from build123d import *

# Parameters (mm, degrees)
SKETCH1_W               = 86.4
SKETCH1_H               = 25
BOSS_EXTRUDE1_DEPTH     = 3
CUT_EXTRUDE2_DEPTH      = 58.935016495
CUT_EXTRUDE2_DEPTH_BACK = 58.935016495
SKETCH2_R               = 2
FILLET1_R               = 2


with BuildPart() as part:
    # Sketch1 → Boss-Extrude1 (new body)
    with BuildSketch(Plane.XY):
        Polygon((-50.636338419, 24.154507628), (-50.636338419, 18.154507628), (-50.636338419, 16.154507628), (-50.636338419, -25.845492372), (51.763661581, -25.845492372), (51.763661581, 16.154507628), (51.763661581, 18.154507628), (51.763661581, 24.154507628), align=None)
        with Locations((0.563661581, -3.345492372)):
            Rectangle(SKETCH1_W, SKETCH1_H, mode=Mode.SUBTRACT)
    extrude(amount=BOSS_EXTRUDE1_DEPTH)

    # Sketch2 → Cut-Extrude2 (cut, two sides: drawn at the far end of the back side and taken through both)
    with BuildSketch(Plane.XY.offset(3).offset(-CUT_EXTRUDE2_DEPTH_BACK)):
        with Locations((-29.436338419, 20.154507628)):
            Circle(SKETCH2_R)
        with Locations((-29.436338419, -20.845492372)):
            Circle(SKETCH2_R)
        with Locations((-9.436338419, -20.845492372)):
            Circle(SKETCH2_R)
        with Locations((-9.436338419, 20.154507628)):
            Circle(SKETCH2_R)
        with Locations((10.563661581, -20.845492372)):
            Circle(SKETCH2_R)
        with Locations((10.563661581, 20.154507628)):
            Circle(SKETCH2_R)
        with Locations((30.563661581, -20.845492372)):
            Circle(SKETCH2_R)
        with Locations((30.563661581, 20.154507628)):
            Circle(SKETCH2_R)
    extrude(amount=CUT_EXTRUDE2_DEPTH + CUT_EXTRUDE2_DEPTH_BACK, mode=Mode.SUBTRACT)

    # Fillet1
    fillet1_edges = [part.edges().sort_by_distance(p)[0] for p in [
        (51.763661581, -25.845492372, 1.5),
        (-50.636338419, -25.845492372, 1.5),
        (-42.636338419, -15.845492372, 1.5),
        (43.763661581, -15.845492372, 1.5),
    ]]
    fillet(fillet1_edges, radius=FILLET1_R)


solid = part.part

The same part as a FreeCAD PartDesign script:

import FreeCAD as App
import Part
import Sketcher


def edges_at(feature, points):
    """Names of the edges that pass closest to the given points."""
    edges = feature.Shape.Edges
    near = lambda p: min(range(len(edges)), key=lambda i: edges[i].distToShape(Part.Vertex(*p))[0])
    return sorted({f"Edge{near(p) + 1}" for p in points})


def add_polygon(sketch, points):
    """Adds a closed chain of lines whose ends are joined by coincident constraints."""
    first, n = sketch.GeometryCount, len(points)
    for a, b in zip(points, points[1:] + points[:1]):
        sketch.addGeometry(Part.LineSegment(App.Vector(*a, 0), App.Vector(*b, 0)), False)
    for i in range(n):
        sketch.addConstraint(Sketcher.Constraint("Coincident", first + i, 2, first + (i + 1) % n, 1))

doc = App.newDocument("Part")
body = doc.addObject("PartDesign::Body", "Body")

sketch1 = body.newObject("Sketcher::SketchObject", "Sketch")
sketch1.AttachmentSupport = (doc.getObject("XY_Plane"), [""])
sketch1.MapMode = "FlatFace"
add_polygon(sketch1, [(-51, 24), (-51, -26), (52, -26), (52, 24)])
add_polygon(sketch1, [(44, -16), (-43, -16), (-43, 9), (44, 9)])
sketch1.addConstraint(Sketcher.Constraint("Vertical", 0))
sketch1.addConstraint(Sketcher.Constraint("Horizontal", 1))
sketch1.addConstraint(Sketcher.Constraint("Vertical", 2))
sketch1.addConstraint(Sketcher.Constraint("Horizontal", 3))
sketch1.addConstraint(Sketcher.Constraint("Horizontal", 4))
sketch1.addConstraint(Sketcher.Constraint("Vertical", 5))
sketch1.addConstraint(Sketcher.Constraint("Horizontal", 6))
sketch1.addConstraint(Sketcher.Constraint("Vertical", 7))
sketch1.addConstraint(Sketcher.Constraint("DistanceY", 0, 2, 0, 1, 50.0))
sketch1.addConstraint(Sketcher.Constraint("DistanceY", 5, 1, 5, 2, 25.0))
sketch1.addConstraint(Sketcher.Constraint("DistanceX", 1, 1, 1, 2, 102.4))
sketch1.addConstraint(Sketcher.Constraint("DistanceX", 4, 2, 4, 1, 86.4))
sketch1.addConstraint(Sketcher.Constraint("DistanceX", 0, 2, 4, 2, 8.0))
sketch1.addConstraint(Sketcher.Constraint("DistanceY", 0, 2, 4, 2, 10.0))
sketch1.addConstraint(Sketcher.Constraint("DistanceX", 0, 2, -1, 1, 50.636338))
sketch1.addConstraint(Sketcher.Constraint("DistanceY", 0, 2, -1, 1, 25.845492))
pad1 = body.newObject("PartDesign::Pad", "Pad")
pad1.Profile = sketch1
pad1.Length = 3

sketch2 = body.newObject("Sketcher::SketchObject", "Sketch001")
sketch2.AttachmentSupport = (doc.getObject("XY_Plane"), [""])
sketch2.MapMode = "FlatFace"
sketch2.AttachmentOffset = App.Placement(App.Vector(0, 0, 3), App.Rotation())
sketch2.addGeometry(Part.Circle(App.Vector(-29.4, 20.2, 0), App.Vector(0, 0, 1), 2), False)
sketch2.addGeometry(Part.Circle(App.Vector(-29.4, -20.8, 0), App.Vector(0, 0, 1), 2), False)
sketch2.addGeometry(Part.Circle(App.Vector(-9.4, -20.8, 0), App.Vector(0, 0, 1), 2), False)
sketch2.addGeometry(Part.Circle(App.Vector(-9.4, 20.2, 0), App.Vector(0, 0, 1), 2), False)
sketch2.addGeometry(Part.Circle(App.Vector(10.6, -20.8, 0), App.Vector(0, 0, 1), 2), False)
sketch2.addGeometry(Part.Circle(App.Vector(10.6, 20.2, 0), App.Vector(0, 0, 1), 2), False)
sketch2.addGeometry(Part.Circle(App.Vector(30.6, -20.8, 0), App.Vector(0, 0, 1), 2), False)
sketch2.addGeometry(Part.Circle(App.Vector(30.6, 20.2, 0), App.Vector(0, 0, 1), 2), False)
sketch2.addConstraint(Sketcher.Constraint("Equal", 0, 1))
sketch2.addConstraint(Sketcher.Constraint("Equal", 1, 2))
sketch2.addConstraint(Sketcher.Constraint("Equal", 2, 3))
sketch2.addConstraint(Sketcher.Constraint("Equal", 3, 4))
sketch2.addConstraint(Sketcher.Constraint("Equal", 4, 5))
sketch2.addConstraint(Sketcher.Constraint("Equal", 5, 6))
sketch2.addConstraint(Sketcher.Constraint("Equal", 6, 7))
sketch2.addConstraint(Sketcher.Constraint("Horizontal", 1, 3, 2, 3))
sketch2.addConstraint(Sketcher.Constraint("Horizontal", 0, 3, 3, 3))
sketch2.addConstraint(Sketcher.Constraint("Horizontal", 2, 3, 4, 3))
sketch2.addConstraint(Sketcher.Constraint("Horizontal", 3, 3, 5, 3))
sketch2.addConstraint(Sketcher.Constraint("Horizontal", 4, 3, 6, 3))
sketch2.addConstraint(Sketcher.Constraint("Horizontal", 5, 3, 7, 3))
sketch2.addConstraint(Sketcher.Constraint("Vertical", 0, 3, 1, 3))
sketch2.addConstraint(Sketcher.Constraint("Vertical", 2, 3, 3, 3))
sketch2.addConstraint(Sketcher.Constraint("Vertical", 4, 3, 5, 3))
sketch2.addConstraint(Sketcher.Constraint("Vertical", 6, 3, 7, 3))
sketch2.addConstraint(Sketcher.Constraint("Diameter", 0, 4.0))
sketch2.addConstraint(Sketcher.Constraint("DistanceY", 1, 3, 0, 3, 41.0))
sketch2.addConstraint(Sketcher.Constraint("DistanceX", 1, 3, 2, 3, 20.0))
sketch2.addConstraint(Sketcher.Constraint("DistanceX", 2, 3, 4, 3, 20.0))
sketch2.addConstraint(Sketcher.Constraint("DistanceX", 4, 3, 6, 3, 20.0))
sketch2.addConstraint(Sketcher.Constraint("DistanceX", 0, 3, -1, 1, 29.436338))
sketch2.addConstraint(Sketcher.Constraint("DistanceY", -1, 1, 0, 3, 20.154508))
pocket1 = body.newObject("PartDesign::Pocket", "Pocket")
pocket1.Profile = sketch2
pocket1.Type = "ThroughAll"
pocket1.Midplane = True
doc.recompute()

fillet = body.newObject("PartDesign::Fillet", "Fillet")
fillet.Base = (pocket1, edges_at(pocket1, [
    (51.764, -25.845, 1.5),
    (-50.636, -25.845, 1.5),
    (-42.636, -15.845, 1.5),
    (43.764, -15.845, 1.5),
]))
fillet.Radius = 2

doc.recompute()
